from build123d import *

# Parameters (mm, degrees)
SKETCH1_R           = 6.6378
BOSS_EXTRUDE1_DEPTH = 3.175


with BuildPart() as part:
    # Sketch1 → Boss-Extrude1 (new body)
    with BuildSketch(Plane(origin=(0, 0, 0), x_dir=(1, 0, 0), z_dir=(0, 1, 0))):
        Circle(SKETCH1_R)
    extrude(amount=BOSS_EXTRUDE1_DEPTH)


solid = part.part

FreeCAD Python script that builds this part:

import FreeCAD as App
import Part
import Sketcher
from FreeCAD import Vector
Q = App.Units.Quantity

doc = App.newDocument("Part")
body = doc.addObject("PartDesign::Body", "Body")

sketch1 = doc.addObject("Sketcher::SketchObject", "Sketch")
body.addObject(sketch1)
sketch1.AttachmentSupport = (doc.XZ_Plane, [""])
sketch1.MapMode = "FlatFace"
sketch1.addGeometry(Part.Circle(Vector(0, 0, 0), Vector(0, 0, 1), 7), False)
sketch1.addConstraint([
    Sketcher.Constraint("Coincident", 0, 3, -1, 1),
    Sketcher.Constraint("Diameter", 0, 13.2756),
])
pad1 = doc.addObject("PartDesign::Pad", "Pad")
body.addObject(pad1)
pad1.Profile = sketch1
pad1.Length = Q("0.125 in")
pad1.Reversed = True

doc.recompute()
